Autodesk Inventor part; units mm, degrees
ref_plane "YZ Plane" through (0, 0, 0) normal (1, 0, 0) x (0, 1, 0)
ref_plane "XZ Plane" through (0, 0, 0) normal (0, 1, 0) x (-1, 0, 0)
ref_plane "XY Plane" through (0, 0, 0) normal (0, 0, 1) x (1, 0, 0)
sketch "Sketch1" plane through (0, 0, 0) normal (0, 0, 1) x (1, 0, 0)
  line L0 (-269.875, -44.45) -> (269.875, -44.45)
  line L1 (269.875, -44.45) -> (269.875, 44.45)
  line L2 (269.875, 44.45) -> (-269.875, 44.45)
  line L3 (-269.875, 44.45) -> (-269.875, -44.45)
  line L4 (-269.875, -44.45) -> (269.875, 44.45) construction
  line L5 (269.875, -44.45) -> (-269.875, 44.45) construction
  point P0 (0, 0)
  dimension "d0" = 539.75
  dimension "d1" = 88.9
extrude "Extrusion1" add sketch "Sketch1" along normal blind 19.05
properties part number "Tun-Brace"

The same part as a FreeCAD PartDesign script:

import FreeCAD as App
import Part
import Sketcher
Q = App.Units.Quantity

doc = App.newDocument("Part")
body = doc.addObject("PartDesign::Body", "Body")

sketch1 = body.newObject("Sketcher::SketchObject", "Sketch")
sketch1.AttachmentSupport = (doc.getObject("XY_Plane"), [""])
sketch1.MapMode = "FlatFace"
sketch1.addGeometry([
    Part.LineSegment(App.Vector(-270, 44, 0), App.Vector(-270, -44, 0)),
    Part.LineSegment(App.Vector(-270, -44, 0), App.Vector(270, -44, 0)),
    Part.LineSegment(App.Vector(270, -44, 0), App.Vector(270, 44, 0)),
    Part.LineSegment(App.Vector(270, 44, 0), App.Vector(-270, 44, 0)),
], False)
sketch1.addConstraint([
    Sketcher.Constraint("Coincident", 0, 2, 1, 1),
    Sketcher.Constraint("Coincident", 1, 2, 2, 1),
    Sketcher.Constraint("Coincident", 2, 2, 3, 1),
    Sketcher.Constraint("Coincident", 3, 2, 0, 1),
    Sketcher.Constraint("Vertical", 0),
    Sketcher.Constraint("Horizontal", 1),
    Sketcher.Constraint("Vertical", 2),
    Sketcher.Constraint("Horizontal", 3),
    Sketcher.Constraint("Symmetric", 0, 2, 2, 2, -1, 1),
    Sketcher.Constraint("DistanceY", 0, 2, 0, 1, Q("3.5 in")),
    Sketcher.Constraint("DistanceX", 1, 1, 1, 2, Q("21.25 in")),
])
pad1 = body.newObject("PartDesign::Pad", "Pad")
pad1.Profile = sketch1
pad1.Length = Q("0.75 in")

doc.recompute()
